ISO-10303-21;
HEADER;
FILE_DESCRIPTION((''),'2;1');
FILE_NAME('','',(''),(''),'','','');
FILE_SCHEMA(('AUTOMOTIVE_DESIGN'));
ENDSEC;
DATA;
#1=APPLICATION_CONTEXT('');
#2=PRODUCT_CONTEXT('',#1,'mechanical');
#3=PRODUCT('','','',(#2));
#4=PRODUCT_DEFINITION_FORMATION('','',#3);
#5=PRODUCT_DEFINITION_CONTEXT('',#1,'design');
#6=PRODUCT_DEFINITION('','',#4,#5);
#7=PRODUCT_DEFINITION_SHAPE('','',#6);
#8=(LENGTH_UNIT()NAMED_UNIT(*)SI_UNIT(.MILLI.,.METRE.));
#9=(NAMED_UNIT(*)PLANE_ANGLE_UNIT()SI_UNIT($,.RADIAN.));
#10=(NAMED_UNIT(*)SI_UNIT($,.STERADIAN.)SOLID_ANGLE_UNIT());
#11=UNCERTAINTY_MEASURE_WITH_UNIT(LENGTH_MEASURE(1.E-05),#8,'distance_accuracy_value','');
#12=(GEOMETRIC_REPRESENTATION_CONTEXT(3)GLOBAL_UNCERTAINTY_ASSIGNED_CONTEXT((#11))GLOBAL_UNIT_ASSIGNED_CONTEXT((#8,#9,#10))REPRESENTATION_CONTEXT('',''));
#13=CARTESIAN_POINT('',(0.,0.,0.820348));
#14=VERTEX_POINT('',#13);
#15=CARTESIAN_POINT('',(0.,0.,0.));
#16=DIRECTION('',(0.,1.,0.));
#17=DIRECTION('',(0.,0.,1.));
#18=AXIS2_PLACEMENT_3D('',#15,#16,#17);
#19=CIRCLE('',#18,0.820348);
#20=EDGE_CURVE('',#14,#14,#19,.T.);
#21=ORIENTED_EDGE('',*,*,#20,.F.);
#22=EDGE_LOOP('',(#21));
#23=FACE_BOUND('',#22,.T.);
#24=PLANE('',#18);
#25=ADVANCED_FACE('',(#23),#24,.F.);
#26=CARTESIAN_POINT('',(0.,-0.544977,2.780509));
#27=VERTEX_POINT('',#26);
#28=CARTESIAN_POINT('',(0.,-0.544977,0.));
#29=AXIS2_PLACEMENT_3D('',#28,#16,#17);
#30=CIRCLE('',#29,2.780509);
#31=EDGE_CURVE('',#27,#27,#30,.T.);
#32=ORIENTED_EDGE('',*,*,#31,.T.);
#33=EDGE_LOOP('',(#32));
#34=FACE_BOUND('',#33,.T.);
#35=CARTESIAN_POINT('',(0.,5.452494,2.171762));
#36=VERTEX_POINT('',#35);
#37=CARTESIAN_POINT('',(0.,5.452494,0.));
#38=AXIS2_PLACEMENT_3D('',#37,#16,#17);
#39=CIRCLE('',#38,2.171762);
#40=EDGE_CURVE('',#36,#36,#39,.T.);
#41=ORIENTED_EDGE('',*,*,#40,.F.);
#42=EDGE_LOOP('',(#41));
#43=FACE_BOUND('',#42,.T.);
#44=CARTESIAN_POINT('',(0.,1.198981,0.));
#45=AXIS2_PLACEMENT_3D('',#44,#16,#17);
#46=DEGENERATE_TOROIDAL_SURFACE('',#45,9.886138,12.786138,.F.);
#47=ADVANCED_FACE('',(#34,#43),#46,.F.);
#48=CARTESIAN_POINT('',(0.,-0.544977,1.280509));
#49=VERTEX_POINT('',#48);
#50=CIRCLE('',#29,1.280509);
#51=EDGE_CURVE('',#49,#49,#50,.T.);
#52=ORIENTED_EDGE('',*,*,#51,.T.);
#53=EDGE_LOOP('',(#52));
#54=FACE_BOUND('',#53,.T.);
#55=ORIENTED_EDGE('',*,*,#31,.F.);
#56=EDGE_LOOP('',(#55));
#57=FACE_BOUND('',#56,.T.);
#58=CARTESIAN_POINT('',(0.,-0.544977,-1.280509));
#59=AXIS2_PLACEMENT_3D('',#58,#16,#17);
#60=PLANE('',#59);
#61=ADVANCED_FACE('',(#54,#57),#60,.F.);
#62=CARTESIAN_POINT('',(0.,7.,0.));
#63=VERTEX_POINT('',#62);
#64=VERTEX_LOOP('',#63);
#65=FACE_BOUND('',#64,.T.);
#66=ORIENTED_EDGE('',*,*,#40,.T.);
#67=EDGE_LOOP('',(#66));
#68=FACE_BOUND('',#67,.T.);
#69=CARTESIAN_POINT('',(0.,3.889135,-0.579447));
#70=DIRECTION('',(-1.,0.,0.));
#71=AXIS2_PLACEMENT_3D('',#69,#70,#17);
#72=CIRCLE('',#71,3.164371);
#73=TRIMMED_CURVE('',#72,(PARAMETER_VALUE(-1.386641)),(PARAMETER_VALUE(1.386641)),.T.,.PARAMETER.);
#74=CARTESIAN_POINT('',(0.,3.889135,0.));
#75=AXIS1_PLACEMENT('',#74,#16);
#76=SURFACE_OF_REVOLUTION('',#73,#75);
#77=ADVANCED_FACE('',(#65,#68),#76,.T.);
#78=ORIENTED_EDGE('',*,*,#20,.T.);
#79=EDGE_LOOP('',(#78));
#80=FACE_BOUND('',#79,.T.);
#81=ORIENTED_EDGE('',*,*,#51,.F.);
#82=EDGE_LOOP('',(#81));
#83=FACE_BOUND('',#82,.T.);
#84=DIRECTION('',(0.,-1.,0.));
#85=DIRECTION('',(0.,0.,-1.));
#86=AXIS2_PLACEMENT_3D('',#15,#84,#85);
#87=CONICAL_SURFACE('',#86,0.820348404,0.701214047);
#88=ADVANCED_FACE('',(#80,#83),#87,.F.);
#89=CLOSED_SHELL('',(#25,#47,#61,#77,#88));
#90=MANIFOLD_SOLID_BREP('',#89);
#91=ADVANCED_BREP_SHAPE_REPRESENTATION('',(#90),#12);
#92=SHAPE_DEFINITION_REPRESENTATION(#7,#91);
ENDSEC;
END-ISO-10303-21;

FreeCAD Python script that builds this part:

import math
import FreeCAD as App
import Part
import Sketcher
Q = App.Units.Quantity

doc = App.newDocument("Part")
body = doc.addObject("PartDesign::Body", "Body")

# Sketch on YZ plane
sketch1 = body.newObject("Sketcher::SketchObject", "Sketch")
sketch1.AttachmentSupport = (doc.getObject("YZ_Plane"), [""])
sketch1.MapMode = "FlatFace"
sketch1.addGeometry([
    Part.LineSegment(App.Vector(0, 0, 0), App.Vector(0, -0.8, 0)),  # 0
    Part.LineSegment(App.Vector(0, -0.8, 0), App.Vector(-0.5, -1.3, 0)),  # 1
    Part.LineSegment(App.Vector(-0.5, -1.3, 0), App.Vector(-0.5, -2.8, 0)),  # 2
    Part.ArcOfCircle(Part.Circle(App.Vector(1.2, 9.9, 0), App.Vector(0, 0, 1), 12.8), math.radians(-98), math.radians(-71)),  # 3
    Part.ArcOfCircle(Part.Circle(App.Vector(3.9, 0.6, 0), App.Vector(0, 0, 1), 3.2), math.radians(-60), math.radians(-11)),  # 4
    Part.LineSegment(App.Vector(7, 0, 0), App.Vector(0, 0, 0)),  # 5
], False)
sketch1.addConstraint([
    Sketcher.Constraint("Coincident", 0, 2, 1, 1),
    Sketcher.Constraint("Coincident", 1, 2, 2, 1),
    Sketcher.Constraint("Coincident", 2, 2, 3, 1),
    Sketcher.Constraint("Coincident", 3, 2, 4, 1),
    Sketcher.Constraint("Coincident", 4, 2, 5, 1),
    Sketcher.Constraint("Coincident", 5, 2, 0, 1),
    Sketcher.Constraint("Vertical", 0),
    Sketcher.Constraint("Vertical", 2),
    Sketcher.Constraint("Horizontal", 5),
    Sketcher.Constraint("Coincident", 5, 2, -1, 1),
    Sketcher.Constraint("DistanceX", 5, 2, 5, 1, Q("7 mm")),
    Sketcher.Constraint("DistanceY", 2, 2, 2, 1, Q("1.5 mm")),
    Sketcher.Constraint("Radius", 3, Q("12.786138 mm")),
    Sketcher.Constraint("Radius", 4, Q("3.164371 mm")),
    Sketcher.Constraint("DistanceY", 0, 2, 0, 1, Q("0.820348 mm")),
    Sketcher.Constraint("DistanceY", 3, 2, 3, 3, Q("12.0579 mm")),
    Sketcher.Constraint("DistanceX", -1, 1, 3, 3, Q("1.198981 mm")),
    Sketcher.Constraint("DistanceY", -1, 1, 3, 3, Q("9.886138 mm")),
    Sketcher.Constraint("DistanceY", 1, 2, -1, 1, Q("1.280509 mm")),
])
revolution = body.newObject("PartDesign::Revolution", "Revolution")
revolution.Profile = sketch1
revolution.ReferenceAxis = (sketch1, ["H_Axis"])
revolution.Angle = 360

doc.recompute()
